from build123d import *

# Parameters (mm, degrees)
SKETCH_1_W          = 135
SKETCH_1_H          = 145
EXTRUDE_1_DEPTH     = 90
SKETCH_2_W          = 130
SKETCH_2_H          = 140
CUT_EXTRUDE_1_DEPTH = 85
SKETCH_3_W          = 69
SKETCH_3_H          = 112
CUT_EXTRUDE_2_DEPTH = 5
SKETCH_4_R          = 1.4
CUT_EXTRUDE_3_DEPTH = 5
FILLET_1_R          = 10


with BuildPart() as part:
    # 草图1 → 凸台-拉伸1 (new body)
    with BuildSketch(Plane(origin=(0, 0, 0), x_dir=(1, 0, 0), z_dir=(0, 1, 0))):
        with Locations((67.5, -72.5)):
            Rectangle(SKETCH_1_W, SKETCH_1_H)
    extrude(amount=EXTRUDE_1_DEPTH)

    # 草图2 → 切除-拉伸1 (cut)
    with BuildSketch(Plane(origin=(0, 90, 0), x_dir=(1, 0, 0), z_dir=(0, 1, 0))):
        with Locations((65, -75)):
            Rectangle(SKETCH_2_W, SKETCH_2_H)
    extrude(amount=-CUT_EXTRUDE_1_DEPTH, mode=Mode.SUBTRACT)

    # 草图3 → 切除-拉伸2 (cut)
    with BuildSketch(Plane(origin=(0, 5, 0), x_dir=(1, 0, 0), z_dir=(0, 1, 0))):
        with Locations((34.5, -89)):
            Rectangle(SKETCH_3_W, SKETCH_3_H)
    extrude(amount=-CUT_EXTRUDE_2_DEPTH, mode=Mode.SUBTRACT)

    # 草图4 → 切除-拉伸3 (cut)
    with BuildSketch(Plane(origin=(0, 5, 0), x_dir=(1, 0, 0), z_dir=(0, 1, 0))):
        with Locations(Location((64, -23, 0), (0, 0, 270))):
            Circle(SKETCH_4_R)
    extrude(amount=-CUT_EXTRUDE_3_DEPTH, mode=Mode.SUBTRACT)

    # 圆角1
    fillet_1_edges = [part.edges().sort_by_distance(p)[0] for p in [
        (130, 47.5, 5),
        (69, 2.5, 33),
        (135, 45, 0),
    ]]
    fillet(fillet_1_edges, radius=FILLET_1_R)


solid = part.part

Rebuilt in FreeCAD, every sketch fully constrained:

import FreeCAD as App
import Part
import Sketcher
Q = App.Units.Quantity


def edges_at(feature, points):
    """Names of the edges that pass closest to the given points."""
    edges = feature.Shape.Edges
    near = lambda p: min(range(len(edges)), key=lambda i: edges[i].distToShape(Part.Vertex(*p))[0])
    return sorted({f"Edge{near(p) + 1}" for p in points})


def add_polygon(sketch, points):
    """Adds a closed chain of lines whose ends are joined by coincident constraints."""
    first, n = sketch.GeometryCount, len(points)
    for a, b in zip(points, points[1:] + points[:1]):
        sketch.addGeometry(Part.LineSegment(App.Vector(*a, 0), App.Vector(*b, 0)), False)
    for i in range(n):
        sketch.addConstraint(Sketcher.Constraint("Coincident", first + i, 2, first + (i + 1) % n, 1))

doc = App.newDocument("Part")
body = doc.addObject("PartDesign::Body", "Body")

# Sketch on XZ plane
sketch1 = body.newObject("Sketcher::SketchObject", "Sketch")
sketch1.AttachmentSupport = (doc.getObject("XZ_Plane"), [""])
sketch1.MapMode = "FlatFace"
add_polygon(sketch1, [(0, 0), (0, 145), (135, 145), (135, 0)])  # lines 0-3
sketch1.addConstraint(Sketcher.Constraint("Vertical", 0))
sketch1.addConstraint(Sketcher.Constraint("Horizontal", 1))
sketch1.addConstraint(Sketcher.Constraint("Vertical", 2))
sketch1.addConstraint(Sketcher.Constraint("Horizontal", 3))
sketch1.addConstraint(Sketcher.Constraint("Coincident", 3, 2, -1, 1))
sketch1.addConstraint(Sketcher.Constraint("DistanceX", 1, 1, 1, 2, Q("135 mm")))
sketch1.addConstraint(Sketcher.Constraint("DistanceY", 0, 1, 0, 2, Q("145 mm")))
pad1 = body.newObject("PartDesign::Pad", "Pad")
pad1.Profile = sketch1
pad1.Length = 90
pad1.Reversed = True

# Sketch on XZ plane
sketch2 = body.newObject("Sketcher::SketchObject", "Sketch001")
sketch2.AttachmentSupport = (doc.getObject("XZ_Plane"), [""])
sketch2.MapMode = "FlatFace"
sketch2.AttachmentOffset = App.Placement(App.Vector(0, 0, -90), App.Rotation())
add_polygon(sketch2, [(0, 5), (0, 145), (130, 145), (130, 5)])  # lines 0-3
sketch2.addConstraint(Sketcher.Constraint("Vertical", 0))
sketch2.addConstraint(Sketcher.Constraint("Horizontal", 1))
sketch2.addConstraint(Sketcher.Constraint("Vertical", 2))
sketch2.addConstraint(Sketcher.Constraint("Horizontal", 3))
sketch2.addConstraint(Sketcher.Constraint("PointOnObject", 0, 2, -2))
sketch2.addConstraint(Sketcher.Constraint("DistanceX", 1, 1, 1, 2, Q("130 mm")))
sketch2.addConstraint(Sketcher.Constraint("DistanceY", 0, 1, 0, 2, Q("140 mm")))
sketch2.addConstraint(Sketcher.Constraint("DistanceY", -1, 1, 0, 2, Q("145 mm")))
pocket1 = body.newObject("PartDesign::Pocket", "Pocket")
pocket1.Profile = sketch2
pocket1.Length = 85
pocket1.Reversed = True

# Sketch on XZ plane
sketch3 = body.newObject("Sketcher::SketchObject", "Sketch002")
sketch3.AttachmentSupport = (doc.getObject("XZ_Plane"), [""])
sketch3.MapMode = "FlatFace"
sketch3.AttachmentOffset = App.Placement(App.Vector(0, 0, -5), App.Rotation())
add_polygon(sketch3, [(0, 33), (0, 145), (69, 145), (69, 33)])  # lines 0-3
sketch3.addConstraint(Sketcher.Constraint("Vertical", 0))
sketch3.addConstraint(Sketcher.Constraint("Horizontal", 1))
sketch3.addConstraint(Sketcher.Constraint("Vertical", 2))
sketch3.addConstraint(Sketcher.Constraint("Horizontal", 3))
sketch3.addConstraint(Sketcher.Constraint("PointOnObject", 0, 2, -2))
sketch3.addConstraint(Sketcher.Constraint("DistanceX", 1, 1, 1, 2, Q("69 mm")))
sketch3.addConstraint(Sketcher.Constraint("DistanceY", 0, 1, 0, 2, Q("112 mm")))
sketch3.addConstraint(Sketcher.Constraint("DistanceY", -1, 1, 0, 2, Q("145 mm")))
pocket2 = body.newObject("PartDesign::Pocket", "Pocket001")
pocket2.Profile = sketch3
pocket2.Length = 5
pocket2.Reversed = True

# Sketch on XZ plane
sketch4 = body.newObject("Sketcher::SketchObject", "Sketch003")
sketch4.AttachmentSupport = (doc.getObject("XZ_Plane"), [""])
sketch4.MapMode = "FlatFace"
sketch4.AttachmentOffset = App.Placement(App.Vector(0, 0, -5), App.Rotation())
sketch4.addGeometry(Part.Circle(App.Vector(64, 23, 0), App.Vector(0, 0, 1), 1.4), False)
sketch4.addConstraint(Sketcher.Constraint("Diameter", 0, Q("2.8 mm")))
sketch4.addConstraint(Sketcher.Constraint("DistanceX", -1, 1, 0, 3, Q("64 mm")))
sketch4.addConstraint(Sketcher.Constraint("DistanceY", -1, 1, 0, 3, Q("23 mm")))
pocket3 = body.newObject("PartDesign::Pocket", "Pocket002")
pocket3.Profile = sketch4
pocket3.Length = 5
pocket3.Reversed = True
doc.recompute()

fillet = body.newObject("PartDesign::Fillet", "Fillet")
fillet.Base = (pocket3, edges_at(pocket3, [(130, 47.5, 5), (69, 2.5, 33), (135, 45, 0)]))
fillet.Radius = 10

doc.recompute()
